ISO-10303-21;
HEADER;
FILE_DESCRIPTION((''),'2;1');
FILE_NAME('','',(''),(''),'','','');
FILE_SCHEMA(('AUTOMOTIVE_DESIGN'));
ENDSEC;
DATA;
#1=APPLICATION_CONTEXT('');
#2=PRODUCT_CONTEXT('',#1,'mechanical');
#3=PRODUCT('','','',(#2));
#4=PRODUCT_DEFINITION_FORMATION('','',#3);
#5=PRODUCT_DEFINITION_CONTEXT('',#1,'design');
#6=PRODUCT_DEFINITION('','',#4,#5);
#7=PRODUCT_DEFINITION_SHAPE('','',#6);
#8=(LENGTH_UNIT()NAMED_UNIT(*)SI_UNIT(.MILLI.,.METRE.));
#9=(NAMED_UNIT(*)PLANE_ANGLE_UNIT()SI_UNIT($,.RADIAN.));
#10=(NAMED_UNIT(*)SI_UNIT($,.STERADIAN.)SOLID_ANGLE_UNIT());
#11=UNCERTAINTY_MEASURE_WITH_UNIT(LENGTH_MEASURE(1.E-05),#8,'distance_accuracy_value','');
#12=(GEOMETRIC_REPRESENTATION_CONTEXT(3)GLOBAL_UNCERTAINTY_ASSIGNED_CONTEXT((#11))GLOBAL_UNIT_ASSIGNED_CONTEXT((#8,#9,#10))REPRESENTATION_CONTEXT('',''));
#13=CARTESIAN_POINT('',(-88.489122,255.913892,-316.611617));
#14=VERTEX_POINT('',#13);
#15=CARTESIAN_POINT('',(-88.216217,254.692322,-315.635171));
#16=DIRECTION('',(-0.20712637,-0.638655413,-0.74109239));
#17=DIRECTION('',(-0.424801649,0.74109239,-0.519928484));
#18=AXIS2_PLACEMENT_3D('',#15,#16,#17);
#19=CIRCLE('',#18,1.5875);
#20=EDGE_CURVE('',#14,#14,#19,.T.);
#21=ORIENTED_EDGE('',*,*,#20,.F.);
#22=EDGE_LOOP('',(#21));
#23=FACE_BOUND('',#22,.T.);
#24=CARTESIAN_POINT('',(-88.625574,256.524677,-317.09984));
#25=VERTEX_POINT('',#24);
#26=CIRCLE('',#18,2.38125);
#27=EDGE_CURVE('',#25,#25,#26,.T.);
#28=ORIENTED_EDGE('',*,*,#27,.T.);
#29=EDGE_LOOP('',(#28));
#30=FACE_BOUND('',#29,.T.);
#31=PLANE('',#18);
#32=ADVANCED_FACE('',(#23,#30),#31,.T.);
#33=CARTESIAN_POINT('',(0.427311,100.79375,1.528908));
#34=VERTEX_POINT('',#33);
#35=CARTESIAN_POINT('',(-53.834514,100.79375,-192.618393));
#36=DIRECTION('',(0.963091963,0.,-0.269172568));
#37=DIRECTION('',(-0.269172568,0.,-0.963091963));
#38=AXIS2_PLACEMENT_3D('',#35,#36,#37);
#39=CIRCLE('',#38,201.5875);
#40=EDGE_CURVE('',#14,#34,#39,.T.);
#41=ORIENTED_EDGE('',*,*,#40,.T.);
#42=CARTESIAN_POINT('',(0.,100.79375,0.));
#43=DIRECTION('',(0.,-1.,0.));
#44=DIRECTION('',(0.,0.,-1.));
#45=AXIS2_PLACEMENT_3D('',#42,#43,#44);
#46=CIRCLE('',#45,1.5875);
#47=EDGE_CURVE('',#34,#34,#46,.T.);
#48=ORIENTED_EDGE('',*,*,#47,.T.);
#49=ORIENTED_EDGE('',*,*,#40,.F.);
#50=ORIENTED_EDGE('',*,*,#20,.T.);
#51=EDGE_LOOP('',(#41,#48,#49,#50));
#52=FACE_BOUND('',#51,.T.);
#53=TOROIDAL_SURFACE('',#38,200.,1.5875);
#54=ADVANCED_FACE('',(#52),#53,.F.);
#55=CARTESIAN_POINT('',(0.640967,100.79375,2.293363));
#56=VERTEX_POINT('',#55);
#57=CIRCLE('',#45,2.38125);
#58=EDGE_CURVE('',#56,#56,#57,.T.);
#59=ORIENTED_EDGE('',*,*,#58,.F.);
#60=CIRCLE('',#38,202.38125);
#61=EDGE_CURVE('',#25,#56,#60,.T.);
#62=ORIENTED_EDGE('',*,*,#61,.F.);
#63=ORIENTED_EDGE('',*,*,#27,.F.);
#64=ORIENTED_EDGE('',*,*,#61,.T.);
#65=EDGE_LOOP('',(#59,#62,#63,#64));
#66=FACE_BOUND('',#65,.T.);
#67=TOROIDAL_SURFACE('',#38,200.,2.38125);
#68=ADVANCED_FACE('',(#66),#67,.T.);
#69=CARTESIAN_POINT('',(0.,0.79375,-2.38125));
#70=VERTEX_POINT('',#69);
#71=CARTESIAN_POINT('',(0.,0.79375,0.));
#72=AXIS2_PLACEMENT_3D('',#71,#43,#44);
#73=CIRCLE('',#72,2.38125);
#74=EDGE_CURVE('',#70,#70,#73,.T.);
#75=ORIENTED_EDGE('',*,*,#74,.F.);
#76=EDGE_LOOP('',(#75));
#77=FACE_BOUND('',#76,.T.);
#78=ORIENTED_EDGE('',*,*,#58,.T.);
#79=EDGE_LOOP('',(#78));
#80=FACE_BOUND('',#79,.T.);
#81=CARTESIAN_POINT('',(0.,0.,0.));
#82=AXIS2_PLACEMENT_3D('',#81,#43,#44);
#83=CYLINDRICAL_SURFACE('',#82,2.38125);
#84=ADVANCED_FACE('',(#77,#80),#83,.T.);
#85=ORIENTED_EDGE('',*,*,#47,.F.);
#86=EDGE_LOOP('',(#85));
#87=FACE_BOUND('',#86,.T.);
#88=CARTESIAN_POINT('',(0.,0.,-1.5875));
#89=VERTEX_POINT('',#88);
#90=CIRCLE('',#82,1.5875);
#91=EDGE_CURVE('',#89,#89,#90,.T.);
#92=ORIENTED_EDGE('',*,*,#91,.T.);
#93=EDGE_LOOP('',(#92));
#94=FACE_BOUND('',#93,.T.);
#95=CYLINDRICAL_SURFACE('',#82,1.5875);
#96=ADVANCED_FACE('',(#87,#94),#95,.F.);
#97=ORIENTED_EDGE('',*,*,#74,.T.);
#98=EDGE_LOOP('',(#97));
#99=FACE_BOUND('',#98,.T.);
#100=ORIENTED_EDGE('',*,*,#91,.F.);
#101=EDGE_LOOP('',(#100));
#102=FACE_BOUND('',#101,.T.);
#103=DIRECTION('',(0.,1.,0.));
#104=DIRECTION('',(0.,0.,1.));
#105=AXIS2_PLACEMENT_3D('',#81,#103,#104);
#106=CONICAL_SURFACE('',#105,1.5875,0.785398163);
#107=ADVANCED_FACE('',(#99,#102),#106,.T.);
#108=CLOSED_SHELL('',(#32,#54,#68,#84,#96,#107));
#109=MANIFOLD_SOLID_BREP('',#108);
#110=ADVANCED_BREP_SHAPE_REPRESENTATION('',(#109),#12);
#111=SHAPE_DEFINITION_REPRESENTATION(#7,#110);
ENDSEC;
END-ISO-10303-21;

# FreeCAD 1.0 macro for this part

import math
import FreeCAD as App
import Part
import Sketcher
from FreeCAD import Vector
Q = App.Units.Quantity

doc = App.newDocument("Part")
params = doc.addObject("Spreadsheet::Sheet", "Params")
for row, (alias, value) in enumerate([
    ("sketch1_width", "0.03125 in"),
    ("revolution_angle", "360 deg"),
    ("sketch2_diameter", "0.1875 in"),
    ("sketch2_diameter2", "0.125 in"),
], start=1):
    params.set(f"A{row}", alias)
    params.set(f"B{row}", "=" + value)
    params.setAlias(f"B{row}", alias)

body = doc.addObject("PartDesign::Body", "Body")

# Sketch on XY plane
sketch1 = body.newObject("Sketcher::SketchObject", "Sketch")
sketch1.AttachmentSupport = (doc.getObject("XY_Plane"), [""])
sketch1.MapMode = "FlatFace"
sketch1.addGeometry(Part.LineSegment(Vector(2.38125, 100.79375, 0), Vector(1.5875, 100.79375, 0)), False)
sketch1.addGeometry(Part.LineSegment(Vector(1.5875, 100.79375, 0), Vector(1.5875, 0, 0)), False)
sketch1.addGeometry(Part.LineSegment(Vector(1.5875, 0, 0), Vector(2.38125, 0.79375, 0)), False)
sketch1.addGeometry(Part.LineSegment(Vector(2.38125, 0.79375, 0), Vector(2.38125, 100.79375, 0)), False)
sketch1.addConstraint(Sketcher.Constraint("Coincident", 0, 2, 1, 1))
sketch1.addConstraint(Sketcher.Constraint("Coincident", 1, 2, 2, 1))
sketch1.addConstraint(Sketcher.Constraint("Coincident", 2, 2, 3, 1))
sketch1.addConstraint(Sketcher.Constraint("Coincident", 3, 2, 0, 1))
sketch1.addConstraint(Sketcher.Constraint("Horizontal", 0))
sketch1.addConstraint(Sketcher.Constraint("Vertical", 1))
sketch1.addConstraint(Sketcher.Constraint("Vertical", 3))
sketch1.addConstraint(Sketcher.Constraint("PointOnObject", 1, 2, -1))
sketch1.addConstraint(Sketcher.Constraint("Angle", 2, Q("45 deg")))
sketch1.addConstraint(Sketcher.Constraint("DistanceX", 0, 2, 0, 1, Q("0.03125 in")))
sketch1.addConstraint(Sketcher.Constraint("DistanceX", -1, 1, 0, 2, Q("0.0625 in")))
sketch1.addConstraint(Sketcher.Constraint("DistanceY", 3, 1, 3, 2, Q("100 mm")))
sketch1.setExpression("Constraints[9]", "Params.sketch1_width")
revolution = body.newObject("PartDesign::Revolution", "Revolution")
revolution.Profile = sketch1
revolution.ReferenceAxis = (sketch1, ["V_Axis"])
revolution.setExpression("Angle", "Params.revolution_angle")

# Sketch on XZ plane
sketch2 = body.newObject("Sketcher::SketchObject", "Sketch001")
sketch2.AttachmentSupport = (doc.getObject("XZ_Plane"), [""])
sketch2.MapMode = "FlatFace"
sketch2.AttachmentOffset = App.Placement(Vector(0, 0, -100.79375), App.Rotation())
sketch2.addGeometry(Part.Circle(Vector(0, 0, 0), Vector(0, 0, 1), 2.38125), False)
sketch2.addGeometry(Part.Circle(Vector(0, 0, 0), Vector(0, 0, 1), 1.5875), False)
sketch2.addConstraint(Sketcher.Constraint("Coincident", 0, 3, -1, 1))
sketch2.addConstraint(Sketcher.Constraint("Coincident", 1, 3, -1, 1))
sketch2.addConstraint(Sketcher.Constraint("Diameter", 0, Q("0.1875 in")))
sketch2.addConstraint(Sketcher.Constraint("Diameter", 1, Q("0.125 in")))
sketch2.setExpression("Constraints[2]", "Params.sketch2_diameter")
sketch2.setExpression("Constraints[3]", "Params.sketch2_diameter2")

# Sketch on an angled plane
sketch3 = body.newObject("Sketcher::SketchObject", "Sketch002")
sketch3.Placement = App.Placement(Vector(0, 0, 0), App.Rotation(Vector(-0.269172568, 0, -0.963091963), Vector(0, 1.000000001, 0), Vector(0.963091963, 0, -0.269172568), "ZXY"))
sketch3.addGeometry(Part.ArcOfCircle(Part.Circle(Vector(200, 100.79375, 0), Vector(0, 0, 1), 200), math.radians(50.30837), math.radians(180)), False)
sketch3.addConstraint(Sketcher.Constraint("PointOnObject", 0, 2, -2))
sketch3.addConstraint(Sketcher.Constraint("Radius", 0, Q("200 mm")))
sketch3.addConstraint(Sketcher.Constraint("DistanceY", -1, 1, 0, 3, Q("100.79375 mm")))
sketch3.addConstraint(Sketcher.Constraint("DistanceY", -1, 1, 0, 2, Q("100.79375 mm")))
sketch3.addConstraint(Sketcher.Constraint("DistanceX", -1, 1, 0, 1, Q("327.731083 mm")))
doc.recompute()

additivepipe = body.newObject("PartDesign::AdditivePipe", "AdditivePipe")
additivepipe.Profile = sketch2
additivepipe.Spine = (sketch3, ["Edge1"])

doc.recompute()
